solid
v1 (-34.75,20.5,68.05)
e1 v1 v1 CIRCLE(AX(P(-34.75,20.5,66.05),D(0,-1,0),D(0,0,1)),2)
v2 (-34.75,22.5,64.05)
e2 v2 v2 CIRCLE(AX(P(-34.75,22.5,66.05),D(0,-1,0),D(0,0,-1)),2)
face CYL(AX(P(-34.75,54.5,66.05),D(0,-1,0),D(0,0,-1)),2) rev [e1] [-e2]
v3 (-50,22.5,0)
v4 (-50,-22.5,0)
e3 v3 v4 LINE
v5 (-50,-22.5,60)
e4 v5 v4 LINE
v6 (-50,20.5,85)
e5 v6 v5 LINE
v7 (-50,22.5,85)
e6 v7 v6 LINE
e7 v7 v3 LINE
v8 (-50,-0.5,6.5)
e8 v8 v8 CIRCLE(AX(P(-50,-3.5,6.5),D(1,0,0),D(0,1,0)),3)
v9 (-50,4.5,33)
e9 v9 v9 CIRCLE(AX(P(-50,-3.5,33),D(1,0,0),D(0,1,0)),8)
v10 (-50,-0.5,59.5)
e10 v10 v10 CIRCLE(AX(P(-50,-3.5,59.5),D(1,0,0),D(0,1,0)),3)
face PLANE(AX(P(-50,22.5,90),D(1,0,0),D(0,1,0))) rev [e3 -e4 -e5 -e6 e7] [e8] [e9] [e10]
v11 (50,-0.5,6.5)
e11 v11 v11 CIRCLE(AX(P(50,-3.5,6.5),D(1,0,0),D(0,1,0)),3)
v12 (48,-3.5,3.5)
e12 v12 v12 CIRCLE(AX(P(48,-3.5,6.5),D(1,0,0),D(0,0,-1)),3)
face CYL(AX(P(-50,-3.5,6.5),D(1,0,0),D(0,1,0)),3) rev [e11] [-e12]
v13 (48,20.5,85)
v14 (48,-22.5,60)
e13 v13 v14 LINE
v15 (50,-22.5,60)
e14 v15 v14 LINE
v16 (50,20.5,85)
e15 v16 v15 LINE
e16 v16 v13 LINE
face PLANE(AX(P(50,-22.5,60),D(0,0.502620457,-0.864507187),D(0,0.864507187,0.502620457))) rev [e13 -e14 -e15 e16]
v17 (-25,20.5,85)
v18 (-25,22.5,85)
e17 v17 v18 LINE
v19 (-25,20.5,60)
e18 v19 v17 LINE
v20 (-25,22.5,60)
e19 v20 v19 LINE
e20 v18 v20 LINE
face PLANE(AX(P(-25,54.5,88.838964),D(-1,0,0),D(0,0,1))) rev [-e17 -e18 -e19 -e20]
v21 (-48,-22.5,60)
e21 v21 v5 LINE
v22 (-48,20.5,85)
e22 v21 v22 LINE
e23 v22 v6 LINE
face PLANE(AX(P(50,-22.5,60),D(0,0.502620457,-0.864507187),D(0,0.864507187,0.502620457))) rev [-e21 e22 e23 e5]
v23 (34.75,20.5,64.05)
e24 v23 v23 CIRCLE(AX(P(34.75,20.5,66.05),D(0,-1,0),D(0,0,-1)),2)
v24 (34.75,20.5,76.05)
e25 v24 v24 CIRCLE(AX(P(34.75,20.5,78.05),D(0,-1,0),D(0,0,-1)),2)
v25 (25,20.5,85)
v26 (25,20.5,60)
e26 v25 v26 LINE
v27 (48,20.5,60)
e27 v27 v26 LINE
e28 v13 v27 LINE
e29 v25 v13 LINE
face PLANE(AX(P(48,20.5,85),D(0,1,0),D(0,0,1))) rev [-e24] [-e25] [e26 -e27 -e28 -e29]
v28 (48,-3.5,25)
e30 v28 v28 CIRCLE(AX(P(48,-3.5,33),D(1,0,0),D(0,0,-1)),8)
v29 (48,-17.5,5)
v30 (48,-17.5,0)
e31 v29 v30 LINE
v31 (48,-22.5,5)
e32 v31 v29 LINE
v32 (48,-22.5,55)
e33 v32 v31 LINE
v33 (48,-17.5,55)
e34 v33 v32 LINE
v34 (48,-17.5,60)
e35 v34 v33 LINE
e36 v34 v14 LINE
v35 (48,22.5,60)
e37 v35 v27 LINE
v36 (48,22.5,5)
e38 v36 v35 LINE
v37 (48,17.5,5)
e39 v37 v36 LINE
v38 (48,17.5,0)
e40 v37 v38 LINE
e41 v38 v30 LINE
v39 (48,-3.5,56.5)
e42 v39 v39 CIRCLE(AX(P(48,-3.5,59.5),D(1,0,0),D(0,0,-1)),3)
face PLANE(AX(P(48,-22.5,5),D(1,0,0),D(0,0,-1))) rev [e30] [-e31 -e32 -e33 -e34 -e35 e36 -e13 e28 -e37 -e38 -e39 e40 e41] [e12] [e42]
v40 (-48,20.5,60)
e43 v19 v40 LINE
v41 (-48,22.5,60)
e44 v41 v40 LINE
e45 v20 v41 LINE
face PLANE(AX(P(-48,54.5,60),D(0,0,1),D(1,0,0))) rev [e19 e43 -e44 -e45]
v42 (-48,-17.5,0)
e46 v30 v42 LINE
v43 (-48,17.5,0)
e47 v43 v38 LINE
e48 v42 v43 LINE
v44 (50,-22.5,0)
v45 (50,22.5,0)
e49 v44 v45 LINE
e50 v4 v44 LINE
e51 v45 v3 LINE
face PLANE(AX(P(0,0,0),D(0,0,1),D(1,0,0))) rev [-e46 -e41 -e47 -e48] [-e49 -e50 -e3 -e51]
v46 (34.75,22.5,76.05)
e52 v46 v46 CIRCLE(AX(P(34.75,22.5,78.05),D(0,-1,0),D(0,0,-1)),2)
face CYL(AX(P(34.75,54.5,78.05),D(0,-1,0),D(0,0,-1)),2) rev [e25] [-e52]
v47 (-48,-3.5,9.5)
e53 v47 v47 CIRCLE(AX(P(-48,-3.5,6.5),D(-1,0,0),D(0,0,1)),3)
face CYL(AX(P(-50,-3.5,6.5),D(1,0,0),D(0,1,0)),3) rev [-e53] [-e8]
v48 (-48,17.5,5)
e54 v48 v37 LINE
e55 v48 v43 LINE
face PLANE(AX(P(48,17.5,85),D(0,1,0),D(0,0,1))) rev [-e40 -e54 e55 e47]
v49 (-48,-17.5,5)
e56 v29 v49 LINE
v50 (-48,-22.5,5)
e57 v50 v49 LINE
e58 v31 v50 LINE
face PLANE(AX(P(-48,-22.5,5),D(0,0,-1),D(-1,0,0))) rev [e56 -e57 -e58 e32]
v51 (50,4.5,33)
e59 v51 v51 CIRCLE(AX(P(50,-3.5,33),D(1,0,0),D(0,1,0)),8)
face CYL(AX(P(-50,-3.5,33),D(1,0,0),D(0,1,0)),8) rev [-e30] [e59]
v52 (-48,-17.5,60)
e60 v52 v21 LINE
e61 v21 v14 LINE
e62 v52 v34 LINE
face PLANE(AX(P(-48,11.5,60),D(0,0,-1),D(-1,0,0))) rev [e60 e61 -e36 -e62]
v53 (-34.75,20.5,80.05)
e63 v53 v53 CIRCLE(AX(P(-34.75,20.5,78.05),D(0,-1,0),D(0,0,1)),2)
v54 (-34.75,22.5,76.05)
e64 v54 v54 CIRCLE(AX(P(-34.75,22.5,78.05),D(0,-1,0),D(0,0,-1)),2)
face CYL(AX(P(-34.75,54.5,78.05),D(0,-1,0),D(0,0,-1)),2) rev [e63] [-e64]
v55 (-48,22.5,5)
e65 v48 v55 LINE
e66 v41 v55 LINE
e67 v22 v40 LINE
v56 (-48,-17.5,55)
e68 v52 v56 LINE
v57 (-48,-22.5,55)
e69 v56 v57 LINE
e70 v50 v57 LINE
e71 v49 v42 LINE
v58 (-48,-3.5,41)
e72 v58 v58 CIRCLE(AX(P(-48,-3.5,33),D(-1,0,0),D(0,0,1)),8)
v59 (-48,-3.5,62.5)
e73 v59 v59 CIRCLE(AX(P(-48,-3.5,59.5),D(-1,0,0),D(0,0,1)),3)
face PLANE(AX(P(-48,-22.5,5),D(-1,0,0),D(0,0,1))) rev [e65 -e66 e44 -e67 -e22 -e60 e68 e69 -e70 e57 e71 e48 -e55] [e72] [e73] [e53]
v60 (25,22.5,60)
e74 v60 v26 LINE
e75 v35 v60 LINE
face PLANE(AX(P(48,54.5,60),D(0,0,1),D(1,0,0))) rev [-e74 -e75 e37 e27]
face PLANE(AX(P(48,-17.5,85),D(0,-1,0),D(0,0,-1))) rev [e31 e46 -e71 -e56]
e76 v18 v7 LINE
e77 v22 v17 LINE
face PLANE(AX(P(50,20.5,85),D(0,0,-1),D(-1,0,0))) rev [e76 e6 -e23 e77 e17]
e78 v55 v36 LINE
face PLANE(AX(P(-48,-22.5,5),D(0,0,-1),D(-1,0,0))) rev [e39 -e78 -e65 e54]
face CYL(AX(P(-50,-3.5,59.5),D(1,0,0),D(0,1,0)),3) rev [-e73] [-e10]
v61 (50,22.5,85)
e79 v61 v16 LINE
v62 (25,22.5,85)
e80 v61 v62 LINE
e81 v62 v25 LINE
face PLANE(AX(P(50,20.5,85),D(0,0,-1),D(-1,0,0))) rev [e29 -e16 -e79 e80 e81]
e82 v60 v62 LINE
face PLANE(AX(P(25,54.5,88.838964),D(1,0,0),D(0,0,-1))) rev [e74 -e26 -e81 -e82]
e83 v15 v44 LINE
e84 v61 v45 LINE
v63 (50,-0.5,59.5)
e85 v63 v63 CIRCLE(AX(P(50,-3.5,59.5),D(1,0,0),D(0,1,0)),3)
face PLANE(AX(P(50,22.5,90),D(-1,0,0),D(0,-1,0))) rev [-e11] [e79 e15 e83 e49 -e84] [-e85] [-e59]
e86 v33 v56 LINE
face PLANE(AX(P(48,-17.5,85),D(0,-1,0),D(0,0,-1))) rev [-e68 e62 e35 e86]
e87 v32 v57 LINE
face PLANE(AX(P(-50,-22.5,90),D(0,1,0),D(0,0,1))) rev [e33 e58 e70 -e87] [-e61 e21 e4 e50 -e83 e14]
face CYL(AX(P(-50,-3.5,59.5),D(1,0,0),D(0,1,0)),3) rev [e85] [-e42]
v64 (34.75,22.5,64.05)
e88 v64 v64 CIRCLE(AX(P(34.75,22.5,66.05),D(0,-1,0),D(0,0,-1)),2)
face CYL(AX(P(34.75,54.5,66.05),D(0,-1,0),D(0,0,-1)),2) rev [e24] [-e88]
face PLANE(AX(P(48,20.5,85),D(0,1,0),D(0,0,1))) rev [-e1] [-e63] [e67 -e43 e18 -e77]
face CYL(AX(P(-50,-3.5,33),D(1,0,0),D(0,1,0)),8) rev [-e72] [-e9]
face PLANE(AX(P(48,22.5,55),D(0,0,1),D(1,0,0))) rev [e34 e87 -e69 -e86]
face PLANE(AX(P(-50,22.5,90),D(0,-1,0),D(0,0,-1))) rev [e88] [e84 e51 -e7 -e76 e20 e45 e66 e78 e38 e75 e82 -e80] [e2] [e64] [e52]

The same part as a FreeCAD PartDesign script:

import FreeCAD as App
import Part
import Sketcher


def add_polygon(sketch, points):
    """Adds a closed chain of lines whose ends are joined by coincident constraints."""
    first, n = sketch.GeometryCount, len(points)
    for a, b in zip(points, points[1:] + points[:1]):
        sketch.addGeometry(Part.LineSegment(App.Vector(*a, 0), App.Vector(*b, 0)), False)
    for i in range(n):
        sketch.addConstraint(Sketcher.Constraint("Coincident", first + i, 2, first + (i + 1) % n, 1))

doc = App.newDocument("Part")
body = doc.addObject("PartDesign::Body", "Body")

# Sketch on XY plane
sketch1 = doc.addObject("Sketcher::SketchObject", "Sketch")
body.addObject(sketch1)
sketch1.AttachmentSupport = (doc.XY_Plane, [""])
sketch1.MapMode = "FlatFace"
add_polygon(sketch1, [(-50, 22), (-50, -22), (50, -22), (50, 22)])  # lines 0-3
sketch1.addConstraint([
    Sketcher.Constraint("Vertical", 0),
    Sketcher.Constraint("Horizontal", 1),
    Sketcher.Constraint("Vertical", 2),
    Sketcher.Constraint("Horizontal", 3),
    Sketcher.Constraint("Symmetric", 0, 2, 2, 2, -1, 1),
    Sketcher.Constraint("DistanceX", 1, 1, 1, 2, 100.0),
    Sketcher.Constraint("DistanceY", 0, 2, 0, 1, 45.0),
])
pad1 = doc.addObject("PartDesign::Pad", "Pad")
body.addObject(pad1)
pad1.Profile = sketch1
pad1.Length = 90

# Sketch on YZ plane
sketch2 = doc.addObject("Sketcher::SketchObject", "Sketch001")
body.addObject(sketch2)
sketch2.AttachmentSupport = (doc.YZ_Plane, [""])
sketch2.MapMode = "FlatFace"
sketch2.AttachmentOffset = App.Placement(App.Vector(0, 0, -50), App.Rotation())
add_polygon(sketch2, [(20.5, 85), (-22.5, 60), (-22.5, 90), (22.5, 90), (22.5, 85)])  # lines 0-4
sketch2.addConstraint([
    Sketcher.Constraint("Vertical", 1),
    Sketcher.Constraint("Horizontal", 2),
    Sketcher.Constraint("Vertical", 3),
    Sketcher.Constraint("Horizontal", 4),
    Sketcher.Constraint("DistanceX", 2, 1, 2, 2, 45.0),
    Sketcher.Constraint("DistanceX", 4, 2, 4, 1, 2.0),
    Sketcher.Constraint("DistanceY", 1, 1, 1, 2, 30.0),
    Sketcher.Constraint("DistanceY", 3, 2, 3, 1, 5.0),
    Sketcher.Constraint("DistanceY", -1, 1, 0, 2, 60.0),
    Sketcher.Constraint("DistanceX", 0, 2, -1, 1, 22.5),
])
pocket1 = doc.addObject("PartDesign::Pocket", "Pocket")
body.addObject(pocket1)
pocket1.Profile = sketch2
pocket1.Type = "ThroughAll"
pocket1.Reversed = True

# Sketch on XZ plane
sketch3 = doc.addObject("Sketcher::SketchObject", "Sketch002")
body.addObject(sketch3)
sketch3.AttachmentSupport = (doc.XZ_Plane, [""])
sketch3.MapMode = "FlatFace"
sketch3.AttachmentOffset = App.Placement(App.Vector(0, 0, -22.5), App.Rotation())
add_polygon(sketch3, [(-48, 5), (-48, 38), (48, 38), (48, 5)])  # lines 0-3
sketch3.addConstraint([
    Sketcher.Constraint("Vertical", 0),
    Sketcher.Constraint("Horizontal", 1),
    Sketcher.Constraint("Vertical", 2),
    Sketcher.Constraint("Horizontal", 3),
    Sketcher.Constraint("DistanceX", 1, 1, 1, 2, 96.0),
    Sketcher.Constraint("DistanceX", 0, 2, -1, 1, 48.0),
    Sketcher.Constraint("DistanceY", -1, 1, 2, 2, 5.0),
    Sketcher.Constraint("DistanceY", 0, 1, 0, 2, 32.638698),
])
pocket2 = doc.addObject("PartDesign::Pocket", "Pocket001")
body.addObject(pocket2)
pocket2.Profile = sketch3
pocket2.Type = "ThroughAll"
pocket2.Midplane = True

# Sketch on XY plane
sketch4 = doc.addObject("Sketcher::SketchObject", "Sketch003")
body.addObject(sketch4)
sketch4.AttachmentSupport = (doc.XY_Plane, [""])
sketch4.MapMode = "FlatFace"
add_polygon(sketch4, [(48, 18), (48, -18), (-48, -18), (-48, 18)])  # lines 0-3
sketch4.addConstraint([
    Sketcher.Constraint("Vertical", 0),
    Sketcher.Constraint("Horizontal", 1),
    Sketcher.Constraint("Vertical", 2),
    Sketcher.Constraint("Horizontal", 3),
    Sketcher.Constraint("Symmetric", 0, 2, 2, 2, -1, 1),
    Sketcher.Constraint("DistanceX", 1, 2, 1, 1, 96.0),
    Sketcher.Constraint("DistanceY", 0, 2, 0, 1, 35.0),
])
pocket3 = doc.addObject("PartDesign::Pocket", "Pocket002")
body.addObject(pocket3)
pocket3.Profile = sketch4
pocket3.Type = "ThroughAll"
pocket3.Reversed = True

# Sketch on YZ plane
sketch5 = doc.addObject("Sketcher::SketchObject", "Sketch004")
body.addObject(sketch5)
sketch5.AttachmentSupport = (doc.YZ_Plane, [""])
sketch5.MapMode = "FlatFace"
sketch5.AttachmentOffset = App.Placement(App.Vector(0, 0, 50), App.Rotation())
sketch5.addGeometry([
    Part.Circle(App.Vector(-3.5, 33, 0), App.Vector(0, 0, 1), 8),
    Part.Circle(App.Vector(-3.5, 6.5, 0), App.Vector(0, 0, 1), 3),
    Part.Circle(App.Vector(-3.5, 59.5, 0), App.Vector(0, 0, 1), 3),
], False)
sketch5.addConstraint([
    Sketcher.Constraint("Equal", 1, 2),
    Sketcher.Constraint("Vertical", 0, 3, 1, 3),
    Sketcher.Constraint("Vertical", 1, 3, 2, 3),
    Sketcher.Constraint("Diameter", 0, 16.0),
    Sketcher.Constraint("Diameter", 1, 6.0),
    Sketcher.Constraint("DistanceY", -1, 1, 0, 3, 33.0),
    Sketcher.Constraint("DistanceY", 1, 3, 2, 3, 53.0),
    Sketcher.Constraint("DistanceX", 0, 3, -1, 1, 3.5),
    Sketcher.Constraint("DistanceY", -1, 1, 1, 3, 6.5),
])
pocket4 = doc.addObject("PartDesign::Pocket", "Pocket003")
body.addObject(pocket4)
pocket4.Profile = sketch5
pocket4.Type = "ThroughAll"

# Sketch on XY plane
sketch6 = doc.addObject("Sketcher::SketchObject", "Sketch005")
body.addObject(sketch6)
sketch6.AttachmentSupport = (doc.XY_Plane, [""])
sketch6.MapMode = "FlatFace"
sketch6.AttachmentOffset = App.Placement(App.Vector(0, 0, 37.638698), App.Rotation())
add_polygon(sketch6, [(48, 20.5), (48, 17.5), (-48, 17.5), (-48, 20.5)])  # lines 0-3
sketch6.addConstraint([
    Sketcher.Constraint("Vertical", 0),
    Sketcher.Constraint("Horizontal", 1),
    Sketcher.Constraint("Vertical", 2),
    Sketcher.Constraint("Horizontal", 3),
    Sketcher.Constraint("DistanceX", 1, 2, 1, 1, 96.0),
    Sketcher.Constraint("DistanceY", 0, 2, 0, 1, 3.0),
    Sketcher.Constraint("DistanceX", -1, 1, 0, 2, 48.0),
    Sketcher.Constraint("DistanceY", -1, 1, 0, 2, 17.5),
])
pocket5 = doc.addObject("PartDesign::Pocket", "Pocket004")
body.addObject(pocket5)
pocket5.Profile = sketch6
pocket5.Type = "ThroughAll"
pocket5.Reversed = True

# Sketch on XZ plane
sketch7 = doc.addObject("Sketcher::SketchObject", "Sketch006")
body.addObject(sketch7)
sketch7.AttachmentSupport = (doc.XZ_Plane, [""])
sketch7.MapMode = "FlatFace"
sketch7.AttachmentOffset = App.Placement(App.Vector(0, 0, -20.5), App.Rotation())
add_polygon(sketch7, [(-25, 89), (-25, 30), (25, 30), (25, 89)])  # lines 0-3
sketch7.addConstraint([
    Sketcher.Constraint("Vertical", 0),
    Sketcher.Constraint("Horizontal", 1),
    Sketcher.Constraint("Vertical", 2),
    Sketcher.Constraint("Horizontal", 3),
    Sketcher.Constraint("DistanceX", 1, 1, 1, 2, 50.0),
    Sketcher.Constraint("DistanceX", 0, 2, -1, 1, 25.0),
    Sketcher.Constraint("DistanceY", 0, 2, 0, 1, 59.094845),
    Sketcher.Constraint("DistanceY", -1, 1, 0, 2, 29.744119),
])
pocket6 = doc.addObject("PartDesign::Pocket", "Pocket005")
body.addObject(pocket6)
pocket6.Profile = sketch7
pocket6.Length = 34

# Sketch on XZ plane
sketch8 = doc.addObject("Sketcher::SketchObject", "Sketch007")
body.addObject(sketch8)
sketch8.AttachmentSupport = (doc.XZ_Plane, [""])
sketch8.MapMode = "FlatFace"
sketch8.AttachmentOffset = App.Placement(App.Vector(0, 0, -20.5), App.Rotation())
sketch8.addGeometry([
    Part.Circle(App.Vector(34.8, 78, 0), App.Vector(0, 0, 1), 2),
    Part.Circle(App.Vector(34.8, 66, 0), App.Vector(0, 0, 1), 2),
    Part.Circle(App.Vector(-34.8, 66, 0), App.Vector(0, 0, 1), 2),
    Part.Circle(App.Vector(-34.8, 78, 0), App.Vector(0, 0, 1), 2),
], False)
sketch8.addConstraint([
    Sketcher.Constraint("Equal", 0, 1),
    Sketcher.Constraint("Equal", 1, 2),
    Sketcher.Constraint("Equal", 2, 3),
    Sketcher.Constraint("Symmetric", 1, 3, 2, 3, -2),
    Sketcher.Constraint("Symmetric", 0, 3, 3, 3, -2),
    Sketcher.Constraint("Vertical", 0, 3, 1, 3),
    Sketcher.Constraint("Diameter", 0, 4.0),
    Sketcher.Constraint("DistanceY", 1, 3, 0, 3, 12.0),
    Sketcher.Constraint("DistanceX", 2, 3, 1, 3, 69.5),
    Sketcher.Constraint("DistanceY", -1, 1, 0, 3, 78.05),
])
pocket7 = doc.addObject("PartDesign::Pocket", "Pocket006")
body.addObject(pocket7)
pocket7.Profile = sketch8
pocket7.Length = 34

# Sketch on XZ plane
sketch9 = doc.addObject("Sketcher::SketchObject", "Sketch008")
body.addObject(sketch9)
sketch9.AttachmentSupport = (doc.XZ_Plane, [""])
sketch9.MapMode = "FlatFace"
sketch9.AttachmentOffset = App.Placement(App.Vector(0, 0, 22.5), App.Rotation())
add_polygon(sketch9, [(-48, 38), (48, 38), (48, 55), (-48, 55)])  # lines 0-3
sketch9.addConstraint([
    Sketcher.Constraint("Horizontal", 0),
    Sketcher.Constraint("Vertical", 1),
    Sketcher.Constraint("Horizontal", 2),
    Sketcher.Constraint("Vertical", 3),
    Sketcher.Constraint("DistanceX", 0, 1, 0, 2, 96.0),
    Sketcher.Constraint("DistanceX", -1, 1, 0, 2, 48.0),
    Sketcher.Constraint("DistanceY", -1, 1, 1, 2, 55.0),
    Sketcher.Constraint("DistanceY", 1, 1, 1, 2, 17.361302),
])
pocket8 = doc.addObject("PartDesign::Pocket", "Pocket007")
body.addObject(pocket8)
pocket8.Profile = sketch9
pocket8.Type = "ThroughAll"

# Sketch on XZ plane
sketch10 = doc.addObject("Sketcher::SketchObject", "Sketch009")
body.addObject(sketch10)
sketch10.AttachmentSupport = (doc.XZ_Plane, [""])
sketch10.MapMode = "FlatFace"
sketch10.AttachmentOffset = App.Placement(App.Vector(0, 0, 22.5), App.Rotation())
add_polygon(sketch10, [(-48, 66), (-48, 60), (48, 60), (48, 66)])  # lines 0-3
sketch10.addConstraint([
    Sketcher.Constraint("Vertical", 0),
    Sketcher.Constraint("Horizontal", 1),
    Sketcher.Constraint("Vertical", 2),
    Sketcher.Constraint("Horizontal", 3),
    Sketcher.Constraint("DistanceX", 1, 1, 1, 2, 96.0),
    Sketcher.Constraint("DistanceX", 0, 2, -1, 1, 48.0),
    Sketcher.Constraint("DistanceY", -1, 1, 0, 2, 60.0),
    Sketcher.Constraint("DistanceY", 0, 2, 0, 1, 6.475086),
])
pocket9 = doc.addObject("PartDesign::Pocket", "Pocket008")
body.addObject(pocket9)
pocket9.Profile = sketch10
pocket9.Length = 34

# Sketch on XZ plane
sketch11 = doc.addObject("Sketcher::SketchObject", "Sketch010")
body.addObject(sketch11)
sketch11.AttachmentSupport = (doc.XZ_Plane, [""])
sketch11.MapMode = "FlatFace"
sketch11.AttachmentOffset = App.Placement(App.Vector(0, 0, -20.5), App.Rotation())
add_polygon(sketch11, [(-48, 60), (-48, 33), (-25, 33), (-25, 60)])  # lines 0-3
add_polygon(sketch11, [(25, 60), (25, 33), (48, 33), (48, 60)])  # lines 4-7
sketch11.addConstraint([
    Sketcher.Constraint("Vertical", 0),
    Sketcher.Constraint("Horizontal", 1),
    Sketcher.Constraint("Vertical", 2),
    Sketcher.Constraint("Horizontal", 3),
    Sketcher.Constraint("Vertical", 4),
    Sketcher.Constraint("Horizontal", 5),
    Sketcher.Constraint("Vertical", 6),
    Sketcher.Constraint("Horizontal", 7),
    Sketcher.Constraint("Symmetric", 1, 2, 4, 2, -2),
    Sketcher.Constraint("Symmetric", 3, 2, 6, 2, -2),
    Sketcher.Constraint("DistanceX", 1, 1, 1, 2, 23.0),
    Sketcher.Constraint("DistanceX", 0, 2, -1, 1, 48.0),
    Sketcher.Constraint("DistanceY", -1, 1, 2, 2, 60.0),
    Sketcher.Constraint("DistanceY", 0, 2, 0, 1, 26.924335),
])
pocket10 = doc.addObject("PartDesign::Pocket", "Pocket009")
body.addObject(pocket10)
pocket10.Profile = sketch11
pocket10.Length = 34

doc.recompute()
